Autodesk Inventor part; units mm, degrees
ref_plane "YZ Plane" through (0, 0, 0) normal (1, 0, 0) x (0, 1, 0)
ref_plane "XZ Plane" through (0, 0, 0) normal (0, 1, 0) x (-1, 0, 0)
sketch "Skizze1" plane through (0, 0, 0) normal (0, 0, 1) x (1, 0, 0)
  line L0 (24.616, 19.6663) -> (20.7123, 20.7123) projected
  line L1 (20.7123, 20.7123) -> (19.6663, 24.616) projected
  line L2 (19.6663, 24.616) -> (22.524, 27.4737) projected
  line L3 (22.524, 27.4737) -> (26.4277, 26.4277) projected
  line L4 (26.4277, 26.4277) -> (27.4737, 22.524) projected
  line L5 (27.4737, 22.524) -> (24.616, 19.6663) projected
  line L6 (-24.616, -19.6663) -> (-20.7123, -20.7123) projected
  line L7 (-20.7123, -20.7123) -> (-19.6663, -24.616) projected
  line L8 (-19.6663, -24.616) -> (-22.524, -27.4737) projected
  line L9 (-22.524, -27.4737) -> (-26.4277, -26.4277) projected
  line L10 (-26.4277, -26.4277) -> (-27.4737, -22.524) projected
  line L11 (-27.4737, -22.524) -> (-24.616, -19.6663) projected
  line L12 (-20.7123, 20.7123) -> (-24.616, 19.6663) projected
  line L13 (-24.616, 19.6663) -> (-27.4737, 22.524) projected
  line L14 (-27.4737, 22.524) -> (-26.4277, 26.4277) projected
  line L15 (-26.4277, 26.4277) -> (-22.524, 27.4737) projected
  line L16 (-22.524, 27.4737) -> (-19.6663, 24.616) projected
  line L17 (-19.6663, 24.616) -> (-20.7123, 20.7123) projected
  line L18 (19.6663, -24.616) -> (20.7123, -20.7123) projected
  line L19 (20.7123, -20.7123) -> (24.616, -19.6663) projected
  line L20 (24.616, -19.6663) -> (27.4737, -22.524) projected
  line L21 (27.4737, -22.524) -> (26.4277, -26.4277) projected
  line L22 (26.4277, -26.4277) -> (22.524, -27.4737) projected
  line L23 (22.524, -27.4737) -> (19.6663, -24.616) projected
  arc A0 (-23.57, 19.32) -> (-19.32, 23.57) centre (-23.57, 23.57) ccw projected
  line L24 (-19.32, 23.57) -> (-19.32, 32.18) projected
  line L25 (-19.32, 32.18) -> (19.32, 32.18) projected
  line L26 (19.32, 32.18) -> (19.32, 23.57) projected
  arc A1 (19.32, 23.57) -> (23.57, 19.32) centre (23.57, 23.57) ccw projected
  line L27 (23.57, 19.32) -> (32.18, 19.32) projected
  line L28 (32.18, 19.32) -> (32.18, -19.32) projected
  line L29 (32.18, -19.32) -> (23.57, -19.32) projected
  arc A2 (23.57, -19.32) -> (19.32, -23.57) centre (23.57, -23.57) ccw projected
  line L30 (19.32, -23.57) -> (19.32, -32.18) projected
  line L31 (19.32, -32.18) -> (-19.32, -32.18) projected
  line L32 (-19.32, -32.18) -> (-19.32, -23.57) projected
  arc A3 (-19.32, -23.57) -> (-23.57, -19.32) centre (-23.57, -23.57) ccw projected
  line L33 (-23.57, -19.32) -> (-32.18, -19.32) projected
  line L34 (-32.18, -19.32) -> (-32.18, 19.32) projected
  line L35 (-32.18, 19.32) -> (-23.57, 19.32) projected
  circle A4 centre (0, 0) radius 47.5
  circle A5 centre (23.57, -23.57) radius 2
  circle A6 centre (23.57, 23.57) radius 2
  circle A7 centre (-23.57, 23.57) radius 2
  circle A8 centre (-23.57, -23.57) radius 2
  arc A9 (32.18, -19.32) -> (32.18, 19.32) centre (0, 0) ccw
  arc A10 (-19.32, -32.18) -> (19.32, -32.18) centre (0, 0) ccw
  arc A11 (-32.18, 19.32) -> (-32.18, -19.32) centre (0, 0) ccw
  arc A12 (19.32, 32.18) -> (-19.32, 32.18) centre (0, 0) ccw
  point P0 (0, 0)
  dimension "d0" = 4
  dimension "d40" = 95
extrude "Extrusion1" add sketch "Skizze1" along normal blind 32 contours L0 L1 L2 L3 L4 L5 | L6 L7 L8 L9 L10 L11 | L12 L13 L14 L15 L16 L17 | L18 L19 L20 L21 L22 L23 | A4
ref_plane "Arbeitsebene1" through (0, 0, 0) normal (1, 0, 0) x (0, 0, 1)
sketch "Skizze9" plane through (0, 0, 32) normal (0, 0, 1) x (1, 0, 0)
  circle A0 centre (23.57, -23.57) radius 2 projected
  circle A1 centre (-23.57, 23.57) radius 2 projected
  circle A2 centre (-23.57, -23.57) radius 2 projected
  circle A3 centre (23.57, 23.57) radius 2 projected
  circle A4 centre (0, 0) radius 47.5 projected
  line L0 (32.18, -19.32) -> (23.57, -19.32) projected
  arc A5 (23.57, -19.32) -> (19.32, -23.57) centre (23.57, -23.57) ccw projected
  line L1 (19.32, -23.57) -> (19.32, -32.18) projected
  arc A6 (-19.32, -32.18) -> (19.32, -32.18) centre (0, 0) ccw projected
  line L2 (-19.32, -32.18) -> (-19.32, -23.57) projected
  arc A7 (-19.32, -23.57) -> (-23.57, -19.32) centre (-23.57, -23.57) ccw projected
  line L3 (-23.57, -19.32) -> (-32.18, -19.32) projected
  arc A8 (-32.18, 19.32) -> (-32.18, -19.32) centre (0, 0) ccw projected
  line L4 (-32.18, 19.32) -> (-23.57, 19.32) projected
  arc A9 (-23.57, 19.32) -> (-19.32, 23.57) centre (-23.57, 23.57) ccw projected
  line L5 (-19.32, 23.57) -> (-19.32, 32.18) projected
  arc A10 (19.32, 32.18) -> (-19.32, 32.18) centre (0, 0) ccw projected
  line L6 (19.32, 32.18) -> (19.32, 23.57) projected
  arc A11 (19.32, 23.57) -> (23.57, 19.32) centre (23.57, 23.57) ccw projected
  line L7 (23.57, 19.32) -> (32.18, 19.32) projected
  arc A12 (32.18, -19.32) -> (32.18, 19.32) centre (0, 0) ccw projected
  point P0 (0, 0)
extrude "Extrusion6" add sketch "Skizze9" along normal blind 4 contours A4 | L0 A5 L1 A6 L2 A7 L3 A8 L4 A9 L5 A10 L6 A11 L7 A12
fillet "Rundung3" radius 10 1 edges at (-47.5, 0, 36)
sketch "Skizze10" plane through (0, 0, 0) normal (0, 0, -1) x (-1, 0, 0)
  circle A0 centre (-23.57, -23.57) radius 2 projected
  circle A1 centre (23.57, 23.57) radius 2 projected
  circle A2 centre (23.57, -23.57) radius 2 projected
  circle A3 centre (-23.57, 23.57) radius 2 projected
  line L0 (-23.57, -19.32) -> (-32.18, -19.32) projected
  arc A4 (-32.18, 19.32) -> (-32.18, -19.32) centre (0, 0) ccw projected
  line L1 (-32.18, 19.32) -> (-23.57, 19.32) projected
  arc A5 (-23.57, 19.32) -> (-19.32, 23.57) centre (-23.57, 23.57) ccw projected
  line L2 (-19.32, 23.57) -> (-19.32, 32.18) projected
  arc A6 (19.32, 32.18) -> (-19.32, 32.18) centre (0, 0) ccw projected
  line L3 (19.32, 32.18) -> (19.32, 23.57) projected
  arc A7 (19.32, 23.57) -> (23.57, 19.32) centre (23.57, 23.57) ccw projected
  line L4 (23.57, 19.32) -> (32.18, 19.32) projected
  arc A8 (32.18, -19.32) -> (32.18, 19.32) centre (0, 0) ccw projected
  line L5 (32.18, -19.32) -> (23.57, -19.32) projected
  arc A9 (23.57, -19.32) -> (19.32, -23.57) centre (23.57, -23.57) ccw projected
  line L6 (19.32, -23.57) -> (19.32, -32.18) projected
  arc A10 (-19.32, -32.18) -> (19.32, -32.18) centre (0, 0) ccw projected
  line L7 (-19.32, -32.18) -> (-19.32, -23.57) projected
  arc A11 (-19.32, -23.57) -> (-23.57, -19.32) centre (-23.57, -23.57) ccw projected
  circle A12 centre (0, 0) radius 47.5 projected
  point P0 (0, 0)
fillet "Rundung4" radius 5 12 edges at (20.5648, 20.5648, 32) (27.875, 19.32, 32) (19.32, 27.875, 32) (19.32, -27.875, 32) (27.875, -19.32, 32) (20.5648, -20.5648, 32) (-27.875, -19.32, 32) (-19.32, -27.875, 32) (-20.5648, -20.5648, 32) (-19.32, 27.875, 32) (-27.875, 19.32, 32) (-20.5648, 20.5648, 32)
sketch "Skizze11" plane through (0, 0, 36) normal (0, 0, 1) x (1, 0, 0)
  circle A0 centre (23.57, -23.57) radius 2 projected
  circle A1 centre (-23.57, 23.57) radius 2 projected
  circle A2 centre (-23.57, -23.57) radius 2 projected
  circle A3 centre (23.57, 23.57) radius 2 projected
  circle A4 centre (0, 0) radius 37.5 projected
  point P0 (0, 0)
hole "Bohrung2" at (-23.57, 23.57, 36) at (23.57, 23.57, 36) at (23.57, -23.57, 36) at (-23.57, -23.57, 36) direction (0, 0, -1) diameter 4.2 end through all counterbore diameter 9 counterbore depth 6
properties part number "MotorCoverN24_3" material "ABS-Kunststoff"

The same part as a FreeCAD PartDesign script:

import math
import FreeCAD as App
import Part
import Sketcher


def edges_at(feature, points):
    """Names of the edges that pass closest to the given points."""
    edges = feature.Shape.Edges
    near = lambda p: min(range(len(edges)), key=lambda i: edges[i].distToShape(Part.Vertex(*p))[0])
    return sorted({f"Edge{near(p) + 1}" for p in points})

doc = App.newDocument("Part")
body = doc.addObject("PartDesign::Body", "Body")

sketch1 = body.newObject("Sketcher::SketchObject", "Sketch")
sketch1.AttachmentSupport = (doc.getObject("XY_Plane"), [""])
sketch1.MapMode = "FlatFace"
sketch1.addGeometry(Part.Circle(App.Vector(0, 0, 0), App.Vector(0, 0, 1), 47.5), False)
sketch1.addGeometry(Part.Circle(App.Vector(23.57, 23.57, 0), App.Vector(0, 0, 1), 2), False)
sketch1.addGeometry(Part.LineSegment(App.Vector(-32.18, 19.32, 0), App.Vector(-23.57, 19.32, 0)), False)
sketch1.addGeometry(Part.ArcOfCircle(Part.Circle(App.Vector(-23.57, 23.57, 0), App.Vector(0, 0, 1), 4.25), math.radians(-90), math.radians(0)), False)
sketch1.addGeometry(Part.LineSegment(App.Vector(-19.32, 23.57, 0), App.Vector(-19.32, 32.18, 0)), False)
sketch1.addGeometry(Part.ArcOfCircle(Part.Circle(App.Vector(0, 0, 0), App.Vector(0, 0, 1), 37.534182), math.radians(59.020536), math.radians(120.979464)), False)
sketch1.addGeometry(Part.LineSegment(App.Vector(19.32, 32.18, 0), App.Vector(19.32, 23.57, 0)), False)
sketch1.addGeometry(Part.ArcOfCircle(Part.Circle(App.Vector(23.57, 23.57, 0), App.Vector(0, 0, 1), 4.25), math.radians(180), math.radians(270)), False)
sketch1.addGeometry(Part.LineSegment(App.Vector(23.57, 19.32, 0), App.Vector(32.18, 19.32, 0)), False)
sketch1.addGeometry(Part.ArcOfCircle(Part.Circle(App.Vector(0, 0, 0), App.Vector(0, 0, 1), 37.534182), math.radians(-30.979464), math.radians(30.979464)), False)
sketch1.addGeometry(Part.LineSegment(App.Vector(32.18, -19.32, 0), App.Vector(23.57, -19.32, 0)), False)
sketch1.addGeometry(Part.ArcOfCircle(Part.Circle(App.Vector(23.57, -23.57, 0), App.Vector(0, 0, 1), 4.25), math.radians(90), math.radians(180)), False)
sketch1.addGeometry(Part.LineSegment(App.Vector(19.32, -23.57, 0), App.Vector(19.32, -32.18, 0)), False)
sketch1.addGeometry(Part.ArcOfCircle(Part.Circle(App.Vector(0, 0, 0), App.Vector(0, 0, 1), 37.534182), math.radians(-120.979464), math.radians(-59.020536)), False)
sketch1.addGeometry(Part.LineSegment(App.Vector(-19.32, -32.18, 0), App.Vector(-19.32, -23.57, 0)), False)
sketch1.addGeometry(Part.ArcOfCircle(Part.Circle(App.Vector(-23.57, -23.57, 0), App.Vector(0, 0, 1), 4.25), math.radians(0), math.radians(90)), False)
sketch1.addGeometry(Part.LineSegment(App.Vector(-23.57, -19.32, 0), App.Vector(-32.18, -19.32, 0)), False)
sketch1.addGeometry(Part.ArcOfCircle(Part.Circle(App.Vector(0, 0, 0), App.Vector(0, 0, 1), 37.534182), math.radians(149.020536), math.radians(210.979464)), False)
sketch1.addGeometry(Part.Circle(App.Vector(-23.57, -23.57, 0), App.Vector(0, 0, 1), 2), False)
sketch1.addGeometry(Part.Circle(App.Vector(23.57, -23.57, 0), App.Vector(0, 0, 1), 2), False)
sketch1.addGeometry(Part.Circle(App.Vector(-23.57, 23.57, 0), App.Vector(0, 0, 1), 2), False)
sketch1.addConstraint(Sketcher.Constraint("Tangent", 2, 2, 3, 1))
sketch1.addConstraint(Sketcher.Constraint("Tangent", 3, 2, 4, 1))
sketch1.addConstraint(Sketcher.Constraint("Coincident", 4, 2, 5, 2))
sketch1.addConstraint(Sketcher.Constraint("Coincident", 5, 1, 6, 1))
sketch1.addConstraint(Sketcher.Constraint("Tangent", 6, 2, 7, 1))
sketch1.addConstraint(Sketcher.Constraint("Tangent", 7, 2, 8, 1))
sketch1.addConstraint(Sketcher.Constraint("Coincident", 8, 2, 9, 2))
sketch1.addConstraint(Sketcher.Constraint("Coincident", 9, 1, 10, 1))
sketch1.addConstraint(Sketcher.Constraint("Tangent", 10, 2, 11, 1))
sketch1.addConstraint(Sketcher.Constraint("Tangent", 11, 2, 12, 1))
sketch1.addConstraint(Sketcher.Constraint("Coincident", 12, 2, 13, 2))
sketch1.addConstraint(Sketcher.Constraint("Coincident", 13, 1, 14, 1))
sketch1.addConstraint(Sketcher.Constraint("Tangent", 14, 2, 15, 1))
sketch1.addConstraint(Sketcher.Constraint("Tangent", 15, 2, 16, 1))
sketch1.addConstraint(Sketcher.Constraint("Coincident", 16, 2, 17, 2))
sketch1.addConstraint(Sketcher.Constraint("Coincident", 17, 1, 2, 1))
sketch1.addConstraint(Sketcher.Constraint("Horizontal", 2))
sketch1.addConstraint(Sketcher.Constraint("Vertical", 4))
sketch1.addConstraint(Sketcher.Constraint("Vertical", 6))
sketch1.addConstraint(Sketcher.Constraint("Horizontal", 8))
sketch1.addConstraint(Sketcher.Constraint("Horizontal", 10))
sketch1.addConstraint(Sketcher.Constraint("Vertical", 12))
sketch1.addConstraint(Sketcher.Constraint("Vertical", 14))
sketch1.addConstraint(Sketcher.Constraint("Horizontal", 16))
sketch1.addConstraint(Sketcher.Constraint("Coincident", 0, 3, -1, 1))
sketch1.addConstraint(Sketcher.Constraint("Coincident", 5, 3, -1, 1))
sketch1.addConstraint(Sketcher.Constraint("Coincident", 9, 3, -1, 1))
sketch1.addConstraint(Sketcher.Constraint("Coincident", 13, 3, -1, 1))
sketch1.addConstraint(Sketcher.Constraint("Coincident", 17, 3, -1, 1))
sketch1.addConstraint(Sketcher.Constraint("Coincident", 7, 3, 1, 3))
sketch1.addConstraint(Sketcher.Constraint("Coincident", 18, 3, 15, 3))
sketch1.addConstraint(Sketcher.Constraint("Coincident", 19, 3, 11, 3))
sketch1.addConstraint(Sketcher.Constraint("Coincident", 20, 3, 3, 3))
sketch1.addConstraint(Sketcher.Constraint("Equal", 3, 7))
sketch1.addConstraint(Sketcher.Constraint("Equal", 5, 9))
sketch1.addConstraint(Sketcher.Constraint("Equal", 7, 11))
sketch1.addConstraint(Sketcher.Constraint("Equal", 9, 13))
sketch1.addConstraint(Sketcher.Constraint("Equal", 11, 15))
sketch1.addConstraint(Sketcher.Constraint("Equal", 13, 17))
sketch1.addConstraint(Sketcher.Constraint("Equal", 1, 18))
sketch1.addConstraint(Sketcher.Constraint("Equal", 18, 19))
sketch1.addConstraint(Sketcher.Constraint("Equal", 19, 20))
sketch1.addConstraint(Sketcher.Constraint("Symmetric", 3, 3, 11, 3, -1, 1))
sketch1.addConstraint(Sketcher.Constraint("Symmetric", 1, 3, 15, 3, -1, 1))
sketch1.addConstraint(Sketcher.Constraint("Symmetric", 1, 3, 3, 3, -2))
sketch1.addConstraint(Sketcher.Constraint("Equal", 16, 4))
sketch1.addConstraint(Sketcher.Constraint("Diameter", 0, 95.0))
sketch1.addConstraint(Sketcher.Constraint("Diameter", 1, 4.0))
sketch1.addConstraint(Sketcher.Constraint("Radius", 3, 4.25))
sketch1.addConstraint(Sketcher.Constraint("DistanceX", 2, 1, 2, 2, 8.61))
sketch1.addConstraint(Sketcher.Constraint("Radius", 5, 37.5342))
pad1 = body.newObject("PartDesign::Pad", "Pad")
pad1.Profile = sketch1
pad1.Length = 32

sketch2 = body.newObject("Sketcher::SketchObject", "Sketch001")
sketch2.AttachmentSupport = (doc.getObject("XY_Plane"), [""])
sketch2.MapMode = "FlatFace"
sketch2.AttachmentOffset = App.Placement(App.Vector(0, 0, 32), App.Rotation())
sketch2.addGeometry(Part.Circle(App.Vector(0, 0, 0), App.Vector(0, 0, 1), 47.5), False)
sketch2.addGeometry(Part.Circle(App.Vector(-23.57, -23.57, 0), App.Vector(0, 0, 1), 2), False)
sketch2.addGeometry(Part.Circle(App.Vector(23.57, -23.57, 0), App.Vector(0, 0, 1), 2), False)
sketch2.addGeometry(Part.Circle(App.Vector(-23.57, 23.57, 0), App.Vector(0, 0, 1), 2), False)
sketch2.addGeometry(Part.Circle(App.Vector(23.57, 23.57, 0), App.Vector(0, 0, 1), 2), False)
sketch2.addConstraint(Sketcher.Constraint("Coincident", 0, 3, -1, 1))
sketch2.addConstraint(Sketcher.Constraint("Equal", 1, 2))
sketch2.addConstraint(Sketcher.Constraint("Equal", 2, 3))
sketch2.addConstraint(Sketcher.Constraint("Equal", 3, 4))
sketch2.addConstraint(Sketcher.Constraint("Symmetric", 2, 3, 3, 3, -1, 1))
sketch2.addConstraint(Sketcher.Constraint("Symmetric", 1, 3, 4, 3, -1, 1))
sketch2.addConstraint(Sketcher.Constraint("Symmetric", 1, 3, 2, 3, -2))
sketch2.addConstraint(Sketcher.Constraint("Diameter", 0, 95.0))
sketch2.addConstraint(Sketcher.Constraint("Diameter", 1, 4.0))
sketch2.addConstraint(Sketcher.Constraint("DistanceX", 1, 3, -1, 1, 23.57))
sketch2.addConstraint(Sketcher.Constraint("DistanceY", 1, 3, -1, 1, 23.57))
pad2 = body.newObject("PartDesign::Pad", "Pad001")
pad2.Profile = sketch2
pad2.Length = 4
doc.recompute()

fillet = body.newObject("PartDesign::Fillet", "Fillet")
fillet.Base = (pad2, edges_at(pad2, [(-47.5, 0, 36)]))
fillet.Radius = 10
doc.recompute()

fillet2 = body.newObject("PartDesign::Fillet", "Fillet001")
fillet2.Base = (fillet, edges_at(fillet, [
    (20.565, 20.565, 32),
    (27.875, 19.32, 32),
    (19.32, 27.875, 32),
    (19.32, -27.875, 32),
    (27.875, -19.32, 32),
    (20.565, -20.565, 32),
    (-27.875, -19.32, 32),
    (-19.32, -27.875, 32),
    (-20.565, -20.565, 32),
    (-19.32, 27.875, 32),
    (-27.875, 19.32, 32),
    (-20.565, 20.565, 32),
]))
fillet2.Radius = 5

sketch3 = body.newObject("Sketcher::SketchObject", "Sketch002")
sketch3.AttachmentSupport = (doc.getObject("XY_Plane"), [""])
sketch3.MapMode = "FlatFace"
sketch3.AttachmentOffset = App.Placement(App.Vector(0, 0, 36), App.Rotation())
sketch3.addGeometry(Part.Circle(App.Vector(-23.57, 23.57, 0), App.Vector(0, 0, 1), 2.1), False)
sketch3.addGeometry(Part.Circle(App.Vector(23.57, 23.57, 0), App.Vector(0, 0, 1), 2.1), False)
sketch3.addGeometry(Part.Circle(App.Vector(23.57, -23.57, 0), App.Vector(0, 0, 1), 2.1), False)
sketch3.addGeometry(Part.Circle(App.Vector(-23.57, -23.57, 0), App.Vector(0, 0, 1), 2.1), False)
sketch3.addConstraint(Sketcher.Constraint("Equal", 0, 1))
sketch3.addConstraint(Sketcher.Constraint("Equal", 1, 2))
sketch3.addConstraint(Sketcher.Constraint("Equal", 2, 3))
sketch3.addConstraint(Sketcher.Constraint("Symmetric", 0, 3, 2, 3, -1, 1))
sketch3.addConstraint(Sketcher.Constraint("Symmetric", 1, 3, 3, 3, -1, 1))
sketch3.addConstraint(Sketcher.Constraint("Symmetric", 0, 3, 1, 3, -2))
sketch3.addConstraint(Sketcher.Constraint("Diameter", 0, 4.2))
sketch3.addConstraint(Sketcher.Constraint("DistanceX", 0, 3, -1, 1, 23.57))
sketch3.addConstraint(Sketcher.Constraint("DistanceY", -1, 1, 0, 3, 23.57))
doc.recompute()
hole = body.newObject("PartDesign::Hole", "Hole")
hole.Profile = sketch3
hole.ThreadType = "None"
hole.Diameter = 4.2
hole.DepthType = "ThroughAll"
hole.HoleCutType = "Counterbore"
hole.HoleCutDiameter = 9
hole.HoleCutDepth = 6

doc.recompute()
